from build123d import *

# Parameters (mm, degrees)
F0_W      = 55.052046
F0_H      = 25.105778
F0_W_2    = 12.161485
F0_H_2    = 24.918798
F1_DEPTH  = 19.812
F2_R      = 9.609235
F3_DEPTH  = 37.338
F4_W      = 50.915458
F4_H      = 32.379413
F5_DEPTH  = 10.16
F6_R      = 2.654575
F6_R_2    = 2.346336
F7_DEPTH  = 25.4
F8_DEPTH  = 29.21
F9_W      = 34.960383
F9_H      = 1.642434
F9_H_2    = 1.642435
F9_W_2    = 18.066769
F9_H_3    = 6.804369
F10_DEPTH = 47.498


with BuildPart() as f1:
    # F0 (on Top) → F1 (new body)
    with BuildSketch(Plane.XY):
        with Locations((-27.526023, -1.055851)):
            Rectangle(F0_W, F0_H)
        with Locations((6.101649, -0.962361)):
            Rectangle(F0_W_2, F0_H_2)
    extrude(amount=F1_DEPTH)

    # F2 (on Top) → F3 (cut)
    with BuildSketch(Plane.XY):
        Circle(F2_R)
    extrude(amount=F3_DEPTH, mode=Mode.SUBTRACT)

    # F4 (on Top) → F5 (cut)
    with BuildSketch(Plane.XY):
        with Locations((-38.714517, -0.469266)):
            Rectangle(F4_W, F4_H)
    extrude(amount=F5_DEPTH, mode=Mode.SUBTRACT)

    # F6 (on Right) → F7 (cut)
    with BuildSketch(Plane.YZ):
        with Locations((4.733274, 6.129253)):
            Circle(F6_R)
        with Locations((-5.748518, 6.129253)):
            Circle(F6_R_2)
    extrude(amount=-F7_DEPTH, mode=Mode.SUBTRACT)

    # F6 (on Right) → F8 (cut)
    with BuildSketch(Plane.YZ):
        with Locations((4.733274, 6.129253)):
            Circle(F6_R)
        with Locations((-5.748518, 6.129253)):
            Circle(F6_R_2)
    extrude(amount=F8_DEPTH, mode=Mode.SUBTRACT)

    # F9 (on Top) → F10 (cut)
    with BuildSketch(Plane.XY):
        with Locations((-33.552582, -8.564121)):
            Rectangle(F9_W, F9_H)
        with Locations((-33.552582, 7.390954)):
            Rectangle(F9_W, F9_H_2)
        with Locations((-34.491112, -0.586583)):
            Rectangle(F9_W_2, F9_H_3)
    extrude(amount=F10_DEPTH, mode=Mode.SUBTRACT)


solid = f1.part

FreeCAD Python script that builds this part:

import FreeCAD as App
import Part
import Sketcher
from FreeCAD import Vector
Q = App.Units.Quantity

doc = App.newDocument("Part")
body = doc.addObject("PartDesign::Body", "Body")
body.AllowCompound = True

sketch1 = doc.addObject("Sketcher::SketchObject", "Sketch")
body.addObject(sketch1)
sketch1.AttachmentSupport = (doc.XY_Plane, [""])
sketch1.MapMode = "FlatFace"
sketch1.addGeometry([
    Part.LineSegment(Vector(-55, 11, 0), Vector(-55, -14, 0)),
    Part.LineSegment(Vector(-55, -14, 0), Vector(0, -14, 0)),
    Part.LineSegment(Vector(0, -14, 0), Vector(0, 11, 0)),
    Part.LineSegment(Vector(0, 11, 0), Vector(-55, 11, 0)),
    Part.LineSegment(Vector(0, 11, 0), Vector(0, -13, 0)),
    Part.LineSegment(Vector(0, -13, 0), Vector(12, -13, 0)),
    Part.LineSegment(Vector(12, -13, 0), Vector(12, 11, 0)),
    Part.LineSegment(Vector(12, 11, 0), Vector(0, 11, 0)),
], False)
sketch1.addConstraint([
    Sketcher.Constraint("Coincident", 0, 2, 1, 1),
    Sketcher.Constraint("Coincident", 1, 2, 2, 1),
    Sketcher.Constraint("Coincident", 2, 2, 3, 1),
    Sketcher.Constraint("Coincident", 3, 2, 0, 1),
    Sketcher.Constraint("Coincident", 4, 2, 5, 1),
    Sketcher.Constraint("Coincident", 5, 2, 6, 1),
    Sketcher.Constraint("Coincident", 6, 2, 7, 1),
    Sketcher.Constraint("Coincident", 7, 2, 4, 1),
    Sketcher.Constraint("Vertical", 0),
    Sketcher.Constraint("Horizontal", 1),
    Sketcher.Constraint("Vertical", 2),
    Sketcher.Constraint("Horizontal", 3),
    Sketcher.Constraint("Vertical", 4),
    Sketcher.Constraint("Horizontal", 5),
    Sketcher.Constraint("Vertical", 6),
    Sketcher.Constraint("Horizontal", 7),
    Sketcher.Constraint("PointOnObject", 1, 2, -2),
    Sketcher.Constraint("Horizontal", 3, 2, 6, 2),
    Sketcher.Constraint("DistanceY", 4, 2, 4, 1, Q("24.918798 mm")),
    Sketcher.Constraint("DistanceY", 0, 2, 0, 1, Q("25.105778 mm")),
    Sketcher.Constraint("DistanceX", 1, 1, 1, 2, Q("55.052046 mm")),
    Sketcher.Constraint("DistanceX", 5, 1, 5, 2, Q("12.161485 mm")),
    Sketcher.Constraint("DistanceY", 0, 2, -1, 1, Q("13.60874 mm")),
    Sketcher.Constraint("DistanceX", -1, 1, 5, 2, Q("12.182391 mm")),
])
pad1 = doc.addObject("PartDesign::Pad", "Pad")
body.addObject(pad1)
pad1.Profile = sketch1
pad1.Length = Q("0.78 in")

sketch2 = doc.addObject("Sketcher::SketchObject", "Sketch001")
body.addObject(sketch2)
sketch2.AttachmentSupport = (doc.XY_Plane, [""])
sketch2.MapMode = "FlatFace"
sketch2.addGeometry(Part.Circle(Vector(0, 0, 0), Vector(0, 0, 1), 10), False)
sketch2.addConstraint([
    Sketcher.Constraint("Coincident", 0, 3, -1, 1),
    Sketcher.Constraint("Diameter", 0, Q("19.21847 mm")),
])
pocket1 = doc.addObject("PartDesign::Pocket", "Pocket")
body.addObject(pocket1)
pocket1.Profile = sketch2
pocket1.Length = Q("1.47 in")
pocket1.Reversed = True

sketch3 = doc.addObject("Sketcher::SketchObject", "Sketch002")
body.addObject(sketch3)
sketch3.AttachmentSupport = (doc.XY_Plane, [""])
sketch3.MapMode = "FlatFace"
sketch3.addGeometry([
    Part.LineSegment(Vector(-64, 16, 0), Vector(-64, -17, 0)),
    Part.LineSegment(Vector(-64, -17, 0), Vector(-13, -17, 0)),
    Part.LineSegment(Vector(-13, -17, 0), Vector(-13, 16, 0)),
    Part.LineSegment(Vector(-13, 16, 0), Vector(-64, 16, 0)),
], False)
sketch3.addConstraint([
    Sketcher.Constraint("Coincident", 0, 2, 1, 1),
    Sketcher.Constraint("Coincident", 1, 2, 2, 1),
    Sketcher.Constraint("Coincident", 2, 2, 3, 1),
    Sketcher.Constraint("Coincident", 3, 2, 0, 1),
    Sketcher.Constraint("Vertical", 0),
    Sketcher.Constraint("Horizontal", 1),
    Sketcher.Constraint("Vertical", 2),
    Sketcher.Constraint("Horizontal", 3),
    Sketcher.Constraint("DistanceX", 1, 1, 1, 2, Q("50.915458 mm")),
    Sketcher.Constraint("DistanceY", 0, 2, 0, 1, Q("32.379413 mm")),
    Sketcher.Constraint("DistanceY", -1, 1, 2, 2, Q("15.720441 mm")),
    Sketcher.Constraint("DistanceX", 0, 2, -1, 1, Q("64.172246 mm")),
])
pocket2 = doc.addObject("PartDesign::Pocket", "Pocket001")
body.addObject(pocket2)
pocket2.Profile = sketch3
pocket2.Length = Q("0.4 in")
pocket2.Reversed = True

sketch4 = doc.addObject("Sketcher::SketchObject", "Sketch003")
body.addObject(sketch4)
sketch4.AttachmentSupport = (doc.YZ_Plane, [""])
sketch4.MapMode = "FlatFace"
sketch4.addGeometry([
    Part.Circle(Vector(4.7, 6.1, 0), Vector(0, 0, 1), 2.7),
    Part.Circle(Vector(-5.7, 6.1, 0), Vector(0, 0, 1), 2.3),
], False)
sketch4.addConstraint([
    Sketcher.Constraint("Horizontal", 0, 3, 1, 3),
    Sketcher.Constraint("Diameter", 0, Q("5.30915 mm")),
    Sketcher.Constraint("Diameter", 1, Q("4.692672 mm")),
    Sketcher.Constraint("DistanceX", 1, 3, 0, 3, Q("10.481792 mm")),
    Sketcher.Constraint("DistanceX", -1, 1, 0, 3, Q("4.733274 mm")),
    Sketcher.Constraint("DistanceY", -1, 1, 0, 3, Q("6.129253 mm")),
])
pocket3 = doc.addObject("PartDesign::Pocket", "Pocket002")
body.addObject(pocket3)
pocket3.Profile = sketch4
pocket3.Length = Q("1 in")

sketch5 = doc.addObject("Sketcher::SketchObject", "Sketch004")
body.addObject(sketch5)
sketch5.AttachmentSupport = (doc.YZ_Plane, [""])
sketch5.MapMode = "FlatFace"
sketch5.addGeometry([
    Part.Circle(Vector(4.7, 6.1, 0), Vector(0, 0, 1), 2.7),
    Part.Circle(Vector(-5.7, 6.1, 0), Vector(0, 0, 1), 2.3),
], False)
sketch5.addConstraint([
    Sketcher.Constraint("Horizontal", 0, 3, 1, 3),
    Sketcher.Constraint("Diameter", 0, Q("5.30915 mm")),
    Sketcher.Constraint("Diameter", 1, Q("4.692672 mm")),
    Sketcher.Constraint("DistanceX", 1, 3, 0, 3, Q("10.481792 mm")),
    Sketcher.Constraint("DistanceX", -1, 1, 0, 3, Q("4.733274 mm")),
    Sketcher.Constraint("DistanceY", -1, 1, 0, 3, Q("6.129253 mm")),
])
pocket4 = doc.addObject("PartDesign::Pocket", "Pocket003")
body.addObject(pocket4)
pocket4.Profile = sketch5
pocket4.Length = Q("1.15 in")
pocket4.Reversed = True

sketch6 = doc.addObject("Sketcher::SketchObject", "Sketch005")
body.addObject(sketch6)
sketch6.AttachmentSupport = (doc.XY_Plane, [""])
sketch6.MapMode = "FlatFace"
sketch6.addGeometry([
    Part.LineSegment(Vector(-51, -7.7, 0), Vector(-51, -9.4, 0)),
    Part.LineSegment(Vector(-51, -9.4, 0), Vector(-16.1, -9.4, 0)),
    Part.LineSegment(Vector(-16.1, -9.4, 0), Vector(-16.1, -7.7, 0)),
    Part.LineSegment(Vector(-16.1, -7.7, 0), Vector(-51, -7.7, 0)),
    Part.LineSegment(Vector(-51, 8.2, 0), Vector(-51, 6.6, 0)),
    Part.LineSegment(Vector(-51, 6.6, 0), Vector(-16.1, 6.6, 0)),
    Part.LineSegment(Vector(-16.1, 6.6, 0), Vector(-16.1, 8.2, 0)),
    Part.LineSegment(Vector(-16.1, 8.2, 0), Vector(-51, 8.2, 0)),
    Part.LineSegment(Vector(-43.5, 2.8, 0), Vector(-43.5, -4, 0)),
    Part.LineSegment(Vector(-43.5, -4, 0), Vector(-25.5, -4, 0)),
    Part.LineSegment(Vector(-25.5, -4, 0), Vector(-25.5, 2.8, 0)),
    Part.LineSegment(Vector(-25.5, 2.8, 0), Vector(-43.5, 2.8, 0)),
], False)
sketch6.addConstraint([
    Sketcher.Constraint("Coincident", 0, 2, 1, 1),
    Sketcher.Constraint("Coincident", 1, 2, 2, 1),
    Sketcher.Constraint("Coincident", 2, 2, 3, 1),
    Sketcher.Constraint("Coincident", 3, 2, 0, 1),
    Sketcher.Constraint("Coincident", 4, 2, 5, 1),
    Sketcher.Constraint("Coincident", 5, 2, 6, 1),
    Sketcher.Constraint("Coincident", 6, 2, 7, 1),
    Sketcher.Constraint("Coincident", 7, 2, 4, 1),
    Sketcher.Constraint("Coincident", 8, 2, 9, 1),
    Sketcher.Constraint("Coincident", 9, 2, 10, 1),
    Sketcher.Constraint("Coincident", 10, 2, 11, 1),
    Sketcher.Constraint("Coincident", 11, 2, 8, 1),
    Sketcher.Constraint("Vertical", 0),
    Sketcher.Constraint("Horizontal", 1),
    Sketcher.Constraint("Vertical", 2),
    Sketcher.Constraint("Horizontal", 3),
    Sketcher.Constraint("Vertical", 4),
    Sketcher.Constraint("Horizontal", 5),
    Sketcher.Constraint("Vertical", 6),
    Sketcher.Constraint("Horizontal", 7),
    Sketcher.Constraint("Vertical", 8),
    Sketcher.Constraint("Horizontal", 9),
    Sketcher.Constraint("Vertical", 10),
    Sketcher.Constraint("Horizontal", 11),
    Sketcher.Constraint("Vertical", 3, 2, 4, 2),
    Sketcher.Constraint("Vertical", 2, 2, 5, 2),
    Sketcher.Constraint("Equal", 2, 4),
    Sketcher.Constraint("DistanceX", 9, 1, 9, 2, Q("18.066769 mm")),
    Sketcher.Constraint("DistanceY", 8, 2, 8, 1, Q("6.804369 mm")),
    Sketcher.Constraint("DistanceY", -1, 1, 10, 2, Q("2.815602 mm")),
    Sketcher.Constraint("DistanceX", 1, 1, 1, 2, Q("34.960383 mm")),
    Sketcher.Constraint("DistanceY", 0, 2, 0, 1, Q("1.642434 mm")),
    Sketcher.Constraint("DistanceY", 0, 2, -1, 1, Q("9.385338 mm")),
    Sketcher.Constraint("DistanceX", 1, 2, -1, 1, Q("16.072391 mm")),
    Sketcher.Constraint("DistanceY", -1, 1, 6, 2, Q("8.212172 mm")),
    Sketcher.Constraint("DistanceX", 8, 2, -1, 1, Q("43.524496 mm")),
])
pocket5 = doc.addObject("PartDesign::Pocket", "Pocket004")
body.addObject(pocket5)
pocket5.Profile = sketch6
pocket5.Length = Q("1.87 in")
pocket5.Reversed = True

doc.recompute()
